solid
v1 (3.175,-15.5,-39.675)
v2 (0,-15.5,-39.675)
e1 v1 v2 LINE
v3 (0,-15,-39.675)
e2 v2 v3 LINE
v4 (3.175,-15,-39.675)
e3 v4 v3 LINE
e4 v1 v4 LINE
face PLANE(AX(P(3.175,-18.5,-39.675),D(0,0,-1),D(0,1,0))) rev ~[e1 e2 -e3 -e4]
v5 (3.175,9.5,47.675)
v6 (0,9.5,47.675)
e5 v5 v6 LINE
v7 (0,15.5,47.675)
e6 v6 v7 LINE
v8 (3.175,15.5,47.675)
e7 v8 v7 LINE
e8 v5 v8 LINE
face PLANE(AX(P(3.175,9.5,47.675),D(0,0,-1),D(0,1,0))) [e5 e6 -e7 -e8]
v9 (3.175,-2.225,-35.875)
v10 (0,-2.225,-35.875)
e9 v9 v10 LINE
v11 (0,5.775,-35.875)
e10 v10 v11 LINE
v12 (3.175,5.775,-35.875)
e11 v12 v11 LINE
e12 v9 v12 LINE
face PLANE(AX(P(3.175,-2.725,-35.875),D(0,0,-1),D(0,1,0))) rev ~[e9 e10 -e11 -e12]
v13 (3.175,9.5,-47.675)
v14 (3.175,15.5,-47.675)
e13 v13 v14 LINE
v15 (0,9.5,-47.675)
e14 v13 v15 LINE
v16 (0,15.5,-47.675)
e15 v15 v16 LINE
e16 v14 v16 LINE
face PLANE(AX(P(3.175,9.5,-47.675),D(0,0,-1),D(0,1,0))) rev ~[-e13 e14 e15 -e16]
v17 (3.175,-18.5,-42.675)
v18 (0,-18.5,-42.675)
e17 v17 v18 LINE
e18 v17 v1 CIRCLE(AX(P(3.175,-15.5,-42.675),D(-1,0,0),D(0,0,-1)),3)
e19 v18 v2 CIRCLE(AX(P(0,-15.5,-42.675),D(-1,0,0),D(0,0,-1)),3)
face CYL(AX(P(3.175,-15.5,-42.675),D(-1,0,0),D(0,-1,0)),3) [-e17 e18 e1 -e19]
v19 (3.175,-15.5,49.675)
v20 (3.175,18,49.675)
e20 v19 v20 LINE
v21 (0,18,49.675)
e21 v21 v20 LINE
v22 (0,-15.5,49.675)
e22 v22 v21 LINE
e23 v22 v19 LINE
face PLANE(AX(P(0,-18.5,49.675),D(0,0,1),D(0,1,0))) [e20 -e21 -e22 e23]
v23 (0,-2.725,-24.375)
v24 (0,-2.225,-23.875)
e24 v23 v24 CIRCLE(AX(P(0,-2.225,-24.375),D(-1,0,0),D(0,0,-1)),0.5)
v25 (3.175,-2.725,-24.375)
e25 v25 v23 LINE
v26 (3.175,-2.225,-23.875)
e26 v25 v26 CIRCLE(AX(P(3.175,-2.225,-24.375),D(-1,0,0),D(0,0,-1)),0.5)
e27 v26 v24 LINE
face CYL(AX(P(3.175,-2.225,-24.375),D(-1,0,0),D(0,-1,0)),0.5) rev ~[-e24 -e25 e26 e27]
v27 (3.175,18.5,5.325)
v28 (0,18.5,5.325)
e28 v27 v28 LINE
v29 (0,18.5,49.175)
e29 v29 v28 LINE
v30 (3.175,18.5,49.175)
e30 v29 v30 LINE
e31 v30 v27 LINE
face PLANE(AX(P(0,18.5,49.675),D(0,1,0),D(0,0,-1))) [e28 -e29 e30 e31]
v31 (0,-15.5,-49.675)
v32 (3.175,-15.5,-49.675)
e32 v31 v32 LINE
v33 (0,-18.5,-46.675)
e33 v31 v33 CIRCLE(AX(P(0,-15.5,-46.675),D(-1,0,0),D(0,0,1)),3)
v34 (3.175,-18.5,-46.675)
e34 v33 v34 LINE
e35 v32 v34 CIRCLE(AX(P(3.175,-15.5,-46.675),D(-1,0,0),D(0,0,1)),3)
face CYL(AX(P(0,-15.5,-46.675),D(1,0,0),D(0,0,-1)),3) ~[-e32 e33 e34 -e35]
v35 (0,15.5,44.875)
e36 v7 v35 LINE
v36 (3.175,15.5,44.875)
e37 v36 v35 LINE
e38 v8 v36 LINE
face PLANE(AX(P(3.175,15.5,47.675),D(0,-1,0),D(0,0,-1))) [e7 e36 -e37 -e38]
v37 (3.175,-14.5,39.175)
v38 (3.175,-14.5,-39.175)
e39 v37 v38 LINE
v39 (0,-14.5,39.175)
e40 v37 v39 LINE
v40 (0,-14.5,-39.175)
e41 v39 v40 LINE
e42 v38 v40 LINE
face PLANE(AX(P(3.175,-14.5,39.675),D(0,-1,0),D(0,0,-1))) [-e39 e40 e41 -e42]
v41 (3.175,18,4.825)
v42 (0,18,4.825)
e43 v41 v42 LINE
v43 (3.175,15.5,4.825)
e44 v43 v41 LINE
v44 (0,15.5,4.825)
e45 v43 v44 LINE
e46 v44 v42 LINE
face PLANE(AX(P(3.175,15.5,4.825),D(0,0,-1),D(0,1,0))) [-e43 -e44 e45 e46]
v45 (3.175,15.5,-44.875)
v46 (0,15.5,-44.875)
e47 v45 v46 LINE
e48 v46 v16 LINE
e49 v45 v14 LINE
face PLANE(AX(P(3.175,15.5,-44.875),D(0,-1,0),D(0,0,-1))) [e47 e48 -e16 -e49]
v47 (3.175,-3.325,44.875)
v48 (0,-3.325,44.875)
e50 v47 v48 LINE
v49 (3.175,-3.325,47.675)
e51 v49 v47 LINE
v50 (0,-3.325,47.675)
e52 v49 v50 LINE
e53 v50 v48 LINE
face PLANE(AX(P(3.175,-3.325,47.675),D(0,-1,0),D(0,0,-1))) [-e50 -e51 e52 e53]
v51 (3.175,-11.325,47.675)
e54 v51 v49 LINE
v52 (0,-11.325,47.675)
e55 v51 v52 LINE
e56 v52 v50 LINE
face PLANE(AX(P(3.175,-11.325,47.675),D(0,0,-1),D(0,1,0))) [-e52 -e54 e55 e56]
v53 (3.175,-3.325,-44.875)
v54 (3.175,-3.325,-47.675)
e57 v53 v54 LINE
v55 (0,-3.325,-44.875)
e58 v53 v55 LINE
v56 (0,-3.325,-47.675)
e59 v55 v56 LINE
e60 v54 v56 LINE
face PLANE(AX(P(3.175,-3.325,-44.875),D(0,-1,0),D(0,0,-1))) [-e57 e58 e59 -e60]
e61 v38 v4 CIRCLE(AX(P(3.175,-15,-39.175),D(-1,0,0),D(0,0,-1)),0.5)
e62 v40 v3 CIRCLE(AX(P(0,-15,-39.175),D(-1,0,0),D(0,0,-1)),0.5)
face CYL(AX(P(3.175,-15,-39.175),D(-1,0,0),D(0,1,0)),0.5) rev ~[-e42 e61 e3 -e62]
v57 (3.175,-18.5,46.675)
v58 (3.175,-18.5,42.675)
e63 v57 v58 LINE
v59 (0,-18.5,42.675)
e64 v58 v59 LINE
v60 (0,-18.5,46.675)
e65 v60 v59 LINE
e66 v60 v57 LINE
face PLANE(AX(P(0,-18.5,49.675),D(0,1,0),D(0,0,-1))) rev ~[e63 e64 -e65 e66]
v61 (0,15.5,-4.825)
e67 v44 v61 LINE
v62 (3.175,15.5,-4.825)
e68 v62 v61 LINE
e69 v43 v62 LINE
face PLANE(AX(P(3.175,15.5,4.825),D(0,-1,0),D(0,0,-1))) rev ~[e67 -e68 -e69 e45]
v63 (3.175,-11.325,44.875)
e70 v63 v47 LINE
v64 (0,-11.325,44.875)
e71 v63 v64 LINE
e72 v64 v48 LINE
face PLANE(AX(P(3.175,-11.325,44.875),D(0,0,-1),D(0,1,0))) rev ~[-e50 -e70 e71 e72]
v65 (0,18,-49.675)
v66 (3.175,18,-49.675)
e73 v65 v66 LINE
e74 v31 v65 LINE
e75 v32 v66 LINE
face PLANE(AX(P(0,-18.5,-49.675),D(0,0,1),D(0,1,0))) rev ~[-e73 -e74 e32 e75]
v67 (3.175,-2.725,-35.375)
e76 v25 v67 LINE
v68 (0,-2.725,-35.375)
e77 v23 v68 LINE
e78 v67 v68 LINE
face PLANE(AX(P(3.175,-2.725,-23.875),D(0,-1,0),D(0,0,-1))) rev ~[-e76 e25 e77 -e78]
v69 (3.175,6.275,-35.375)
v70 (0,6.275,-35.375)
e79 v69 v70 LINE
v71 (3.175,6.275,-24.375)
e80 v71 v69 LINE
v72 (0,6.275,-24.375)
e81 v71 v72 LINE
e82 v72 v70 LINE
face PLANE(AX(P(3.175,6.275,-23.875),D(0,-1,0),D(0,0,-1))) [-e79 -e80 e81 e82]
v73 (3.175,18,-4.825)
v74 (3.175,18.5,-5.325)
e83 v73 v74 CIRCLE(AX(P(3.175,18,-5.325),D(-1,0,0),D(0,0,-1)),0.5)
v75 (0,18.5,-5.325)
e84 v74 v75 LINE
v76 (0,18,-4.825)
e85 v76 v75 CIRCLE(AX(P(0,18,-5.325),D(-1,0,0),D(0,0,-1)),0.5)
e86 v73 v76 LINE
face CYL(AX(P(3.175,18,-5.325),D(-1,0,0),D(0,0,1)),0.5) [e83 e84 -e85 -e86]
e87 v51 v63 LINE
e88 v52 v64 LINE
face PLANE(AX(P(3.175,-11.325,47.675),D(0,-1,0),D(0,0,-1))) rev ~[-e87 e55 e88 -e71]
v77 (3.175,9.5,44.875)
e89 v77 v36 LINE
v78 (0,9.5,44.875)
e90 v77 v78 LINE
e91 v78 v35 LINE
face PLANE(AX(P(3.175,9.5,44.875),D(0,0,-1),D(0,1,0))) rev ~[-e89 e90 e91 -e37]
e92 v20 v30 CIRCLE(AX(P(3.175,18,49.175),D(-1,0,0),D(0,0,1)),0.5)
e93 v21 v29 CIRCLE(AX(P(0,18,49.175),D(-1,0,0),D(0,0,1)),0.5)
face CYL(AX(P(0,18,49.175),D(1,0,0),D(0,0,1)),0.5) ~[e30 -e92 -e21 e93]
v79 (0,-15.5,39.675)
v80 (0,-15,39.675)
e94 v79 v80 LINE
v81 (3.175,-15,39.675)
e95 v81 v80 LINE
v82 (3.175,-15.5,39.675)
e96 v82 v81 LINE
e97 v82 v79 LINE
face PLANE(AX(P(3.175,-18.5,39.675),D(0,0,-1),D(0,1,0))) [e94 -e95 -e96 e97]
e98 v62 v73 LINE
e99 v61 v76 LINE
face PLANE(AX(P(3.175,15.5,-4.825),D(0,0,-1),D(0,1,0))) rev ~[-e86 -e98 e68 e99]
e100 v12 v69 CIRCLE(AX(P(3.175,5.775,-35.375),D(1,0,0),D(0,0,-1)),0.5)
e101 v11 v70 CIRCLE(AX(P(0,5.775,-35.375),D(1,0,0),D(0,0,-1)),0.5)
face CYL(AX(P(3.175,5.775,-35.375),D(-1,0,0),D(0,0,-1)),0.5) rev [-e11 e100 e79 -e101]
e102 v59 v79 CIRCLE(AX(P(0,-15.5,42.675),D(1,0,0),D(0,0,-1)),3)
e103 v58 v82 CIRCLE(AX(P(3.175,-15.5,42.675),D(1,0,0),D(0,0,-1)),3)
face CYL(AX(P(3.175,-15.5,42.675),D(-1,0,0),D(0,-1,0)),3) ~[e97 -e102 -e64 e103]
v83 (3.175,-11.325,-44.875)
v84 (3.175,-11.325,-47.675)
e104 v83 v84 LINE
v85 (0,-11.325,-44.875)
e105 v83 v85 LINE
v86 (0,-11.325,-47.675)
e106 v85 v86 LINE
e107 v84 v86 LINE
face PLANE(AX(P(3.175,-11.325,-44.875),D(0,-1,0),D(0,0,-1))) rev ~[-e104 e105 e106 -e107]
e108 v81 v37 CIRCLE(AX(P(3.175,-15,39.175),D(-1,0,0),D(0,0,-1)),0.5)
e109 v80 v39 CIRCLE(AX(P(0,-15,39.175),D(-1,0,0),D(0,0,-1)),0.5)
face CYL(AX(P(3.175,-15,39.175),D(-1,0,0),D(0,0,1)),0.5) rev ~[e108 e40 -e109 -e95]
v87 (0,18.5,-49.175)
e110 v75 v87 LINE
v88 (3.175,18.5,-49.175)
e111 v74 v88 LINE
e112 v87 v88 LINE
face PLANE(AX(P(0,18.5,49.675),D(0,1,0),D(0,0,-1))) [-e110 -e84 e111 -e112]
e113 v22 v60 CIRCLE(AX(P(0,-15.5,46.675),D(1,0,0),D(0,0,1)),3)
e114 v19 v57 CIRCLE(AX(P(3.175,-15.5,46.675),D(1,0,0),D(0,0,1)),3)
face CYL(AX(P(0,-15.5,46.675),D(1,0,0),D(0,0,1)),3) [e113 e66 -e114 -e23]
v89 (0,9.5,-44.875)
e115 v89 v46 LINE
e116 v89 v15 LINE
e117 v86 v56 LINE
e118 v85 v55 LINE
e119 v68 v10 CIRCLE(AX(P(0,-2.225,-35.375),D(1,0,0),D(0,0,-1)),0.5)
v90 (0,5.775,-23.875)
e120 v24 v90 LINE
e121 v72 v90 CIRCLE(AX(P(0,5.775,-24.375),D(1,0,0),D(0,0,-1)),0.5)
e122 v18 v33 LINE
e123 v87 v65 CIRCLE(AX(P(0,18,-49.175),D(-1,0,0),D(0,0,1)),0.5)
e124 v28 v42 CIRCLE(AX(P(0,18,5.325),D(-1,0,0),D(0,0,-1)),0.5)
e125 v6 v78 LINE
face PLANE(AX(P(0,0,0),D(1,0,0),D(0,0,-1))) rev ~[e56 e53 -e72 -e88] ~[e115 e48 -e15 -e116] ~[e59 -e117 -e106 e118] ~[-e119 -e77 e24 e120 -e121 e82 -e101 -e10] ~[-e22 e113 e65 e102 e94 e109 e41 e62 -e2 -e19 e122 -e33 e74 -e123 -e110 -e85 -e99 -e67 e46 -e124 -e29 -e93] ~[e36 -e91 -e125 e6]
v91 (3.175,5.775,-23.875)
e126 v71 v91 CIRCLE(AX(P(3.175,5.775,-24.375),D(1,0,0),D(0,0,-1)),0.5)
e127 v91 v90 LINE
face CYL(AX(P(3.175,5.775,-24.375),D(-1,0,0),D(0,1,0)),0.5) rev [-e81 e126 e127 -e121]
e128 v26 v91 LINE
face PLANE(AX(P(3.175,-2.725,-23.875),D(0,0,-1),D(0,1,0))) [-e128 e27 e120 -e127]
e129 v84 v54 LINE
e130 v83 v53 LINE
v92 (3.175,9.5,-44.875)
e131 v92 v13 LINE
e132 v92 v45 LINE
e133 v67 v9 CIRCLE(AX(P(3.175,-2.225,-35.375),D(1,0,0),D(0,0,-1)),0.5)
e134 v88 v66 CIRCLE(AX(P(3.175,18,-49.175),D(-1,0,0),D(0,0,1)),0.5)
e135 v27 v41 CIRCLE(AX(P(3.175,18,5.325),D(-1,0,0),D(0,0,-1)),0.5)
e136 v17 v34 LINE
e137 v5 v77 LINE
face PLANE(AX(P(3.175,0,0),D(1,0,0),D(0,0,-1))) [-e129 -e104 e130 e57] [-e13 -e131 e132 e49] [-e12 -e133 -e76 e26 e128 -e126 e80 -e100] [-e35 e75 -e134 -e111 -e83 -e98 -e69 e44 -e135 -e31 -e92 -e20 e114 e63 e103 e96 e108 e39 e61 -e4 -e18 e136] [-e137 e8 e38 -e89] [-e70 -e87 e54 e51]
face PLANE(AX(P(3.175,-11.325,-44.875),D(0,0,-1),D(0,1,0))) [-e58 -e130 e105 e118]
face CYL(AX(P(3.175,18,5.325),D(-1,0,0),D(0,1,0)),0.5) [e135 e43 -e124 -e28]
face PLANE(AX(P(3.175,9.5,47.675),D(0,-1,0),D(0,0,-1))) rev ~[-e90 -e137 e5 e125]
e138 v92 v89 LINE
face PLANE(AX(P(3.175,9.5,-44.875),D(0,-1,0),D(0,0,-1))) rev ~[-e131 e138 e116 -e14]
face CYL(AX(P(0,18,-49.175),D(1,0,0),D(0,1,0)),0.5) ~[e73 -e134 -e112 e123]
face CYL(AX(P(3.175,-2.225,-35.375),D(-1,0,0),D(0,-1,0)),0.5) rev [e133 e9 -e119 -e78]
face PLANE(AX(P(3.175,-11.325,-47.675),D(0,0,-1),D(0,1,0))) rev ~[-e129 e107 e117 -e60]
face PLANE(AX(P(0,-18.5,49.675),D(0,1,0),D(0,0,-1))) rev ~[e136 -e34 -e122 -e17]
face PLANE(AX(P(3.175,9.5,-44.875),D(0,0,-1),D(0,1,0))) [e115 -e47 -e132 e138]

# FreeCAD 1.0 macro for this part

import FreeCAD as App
import Part
import Sketcher
from FreeCAD import Vector


def edges_at(feature, points):
    """Names of the edges that pass closest to the given points."""
    edges = feature.Shape.Edges
    near = lambda p: min(range(len(edges)), key=lambda i: edges[i].distToShape(Part.Vertex(*p))[0])
    return sorted({f"Edge{near(p) + 1}" for p in points})

doc = App.newDocument("Part")
body = doc.addObject("PartDesign::Body", "Body")

# Sketch on YZ plane
sketch1 = body.newObject("Sketcher::SketchObject", "Sketch")
sketch1.AttachmentSupport = (doc.getObject("YZ_Plane"), [""])
sketch1.MapMode = "FlatFace"
sketch1.addGeometry([
    Part.LineSegment(Vector(18, 50, 0), Vector(-18, 50, 0)),
    Part.LineSegment(Vector(-18, 50, 0), Vector(-18, -50, 0)),
    Part.LineSegment(Vector(-18, -50, 0), Vector(18, -50, 0)),
    Part.LineSegment(Vector(18, -50, 0), Vector(18, 50, 0)),
], False)
sketch1.addConstraint([
    Sketcher.Constraint("Coincident", 0, 2, 1, 1),
    Sketcher.Constraint("Coincident", 1, 2, 2, 1),
    Sketcher.Constraint("Coincident", 2, 2, 3, 1),
    Sketcher.Constraint("Coincident", 3, 2, 0, 1),
    Sketcher.Constraint("Horizontal", 0),
    Sketcher.Constraint("Vertical", 1),
    Sketcher.Constraint("Horizontal", 2),
    Sketcher.Constraint("Vertical", 3),
    Sketcher.Constraint("Symmetric", 0, 2, 2, 2, -1, 1),
    Sketcher.Constraint("DistanceX", 0, 2, 0, 1, 37.0),
    Sketcher.Constraint("DistanceY", 1, 2, 1, 1, 99.35),
])
pad1 = body.newObject("PartDesign::Pad", "Pad")
pad1.Profile = sketch1
pad1.Length = 3.175

# Sketch on YZ plane
sketch2 = body.newObject("Sketcher::SketchObject", "Sketch001")
sketch2.AttachmentSupport = (doc.getObject("YZ_Plane"), [""])
sketch2.MapMode = "FlatFace"
sketch2.AttachmentOffset = App.Placement(Vector(0, 0, 3.175), App.Rotation())
sketch2.addGeometry([
    Part.LineSegment(Vector(15.5, 47.7, 0), Vector(9.5, 47.7, 0)),  # 0
    Part.LineSegment(Vector(9.5, 47.7, 0), Vector(9.5, 44.9, 0)),  # 1
    Part.LineSegment(Vector(9.5, 44.9, 0), Vector(15.5, 44.9, 0)),  # 2
    Part.LineSegment(Vector(15.5, 44.9, 0), Vector(15.5, 47.7, 0)),  # 3
    Part.LineSegment(Vector(15.5, -44.9, 0), Vector(9.5, -44.9, 0)),  # 4
    Part.LineSegment(Vector(9.5, -44.9, 0), Vector(9.5, -47.7, 0)),  # 5
    Part.LineSegment(Vector(9.5, -47.7, 0), Vector(15.5, -47.7, 0)),  # 6
    Part.LineSegment(Vector(15.5, -47.7, 0), Vector(15.5, -44.9, 0)),  # 7
    Part.LineSegment(Vector(-3.3, 47.7, 0), Vector(-11.3, 47.7, 0)),  # 8
    Part.LineSegment(Vector(-11.3, 47.7, 0), Vector(-11.3, 44.9, 0)),  # 9
    Part.LineSegment(Vector(-11.3, 44.9, 0), Vector(-3.3, 44.9, 0)),  # 10
    Part.LineSegment(Vector(-3.3, 44.9, 0), Vector(-3.3, 47.7, 0)),  # 11
    Part.LineSegment(Vector(-3.3, -44.9, 0), Vector(-11.3, -44.9, 0)),  # 12
    Part.LineSegment(Vector(-11.3, -44.9, 0), Vector(-11.3, -47.7, 0)),  # 13
    Part.LineSegment(Vector(-11.3, -47.7, 0), Vector(-3.3, -47.7, 0)),  # 14
    Part.LineSegment(Vector(-3.3, -47.7, 0), Vector(-3.3, -44.9, 0)),  # 15
], False)
sketch2.addConstraint([
    Sketcher.Constraint("Coincident", 0, 2, 1, 1),
    Sketcher.Constraint("Coincident", 1, 2, 2, 1),
    Sketcher.Constraint("Coincident", 2, 2, 3, 1),
    Sketcher.Constraint("Coincident", 3, 2, 0, 1),
    Sketcher.Constraint("Coincident", 4, 2, 5, 1),
    Sketcher.Constraint("Coincident", 5, 2, 6, 1),
    Sketcher.Constraint("Coincident", 6, 2, 7, 1),
    Sketcher.Constraint("Coincident", 7, 2, 4, 1),
    Sketcher.Constraint("Coincident", 8, 2, 9, 1),
    Sketcher.Constraint("Coincident", 9, 2, 10, 1),
    Sketcher.Constraint("Coincident", 10, 2, 11, 1),
    Sketcher.Constraint("Coincident", 11, 2, 8, 1),
    Sketcher.Constraint("Coincident", 12, 2, 13, 1),
    Sketcher.Constraint("Coincident", 13, 2, 14, 1),
    Sketcher.Constraint("Coincident", 14, 2, 15, 1),
    Sketcher.Constraint("Coincident", 15, 2, 12, 1),
    Sketcher.Constraint("Horizontal", 0),
    Sketcher.Constraint("Vertical", 1),
    Sketcher.Constraint("Horizontal", 2),
    Sketcher.Constraint("Vertical", 3),
    Sketcher.Constraint("Horizontal", 4),
    Sketcher.Constraint("Vertical", 5),
    Sketcher.Constraint("Horizontal", 6),
    Sketcher.Constraint("Vertical", 7),
    Sketcher.Constraint("Horizontal", 8),
    Sketcher.Constraint("Vertical", 9),
    Sketcher.Constraint("Horizontal", 10),
    Sketcher.Constraint("Vertical", 11),
    Sketcher.Constraint("Horizontal", 12),
    Sketcher.Constraint("Vertical", 13),
    Sketcher.Constraint("Horizontal", 14),
    Sketcher.Constraint("Vertical", 15),
    Sketcher.Constraint("Symmetric", 1, 2, 4, 2, -1),
    Sketcher.Constraint("Symmetric", 3, 2, 6, 2, -1),
    Sketcher.Constraint("Symmetric", 9, 2, 12, 2, -1),
    Sketcher.Constraint("Symmetric", 11, 2, 14, 2, -1),
    Sketcher.Constraint("Horizontal", 3, 2, 8, 2),
    Sketcher.Constraint("Horizontal", 2, 2, 9, 2),
    Sketcher.Constraint("DistanceX", 0, 2, 0, 1, 6.0),
    Sketcher.Constraint("DistanceX", 8, 2, 8, 1, 8.0),
    Sketcher.Constraint("DistanceY", 1, 2, 1, 1, 2.8),
    Sketcher.Constraint("DistanceX", -1, 1, 0, 2, 9.5),
    Sketcher.Constraint("DistanceY", 4, 2, 1, 2, 89.75),
    Sketcher.Constraint("DistanceX", 8, 2, -1, 1, 11.325),
])
pocket1 = body.newObject("PartDesign::Pocket", "Pocket")
pocket1.Profile = sketch2
pocket1.Type = "ThroughAll"

# Sketch on YZ plane
sketch3 = body.newObject("Sketcher::SketchObject", "Sketch002")
sketch3.AttachmentSupport = (doc.getObject("YZ_Plane"), [""])
sketch3.MapMode = "FlatFace"
sketch3.AttachmentOffset = App.Placement(Vector(0, 0, 3.175), App.Rotation())
sketch3.addGeometry([
    Part.LineSegment(Vector(-14.5, 39.7, 0), Vector(-18.5, 39.7, 0)),
    Part.LineSegment(Vector(-18.5, 39.7, 0), Vector(-18.5, -39.7, 0)),
    Part.LineSegment(Vector(-18.5, -39.7, 0), Vector(-14.5, -39.7, 0)),
    Part.LineSegment(Vector(-14.5, -39.7, 0), Vector(-14.5, 39.7, 0)),
], False)
sketch3.addConstraint([
    Sketcher.Constraint("Coincident", 0, 2, 1, 1),
    Sketcher.Constraint("Coincident", 1, 2, 2, 1),
    Sketcher.Constraint("Coincident", 2, 2, 3, 1),
    Sketcher.Constraint("Coincident", 3, 2, 0, 1),
    Sketcher.Constraint("Horizontal", 0),
    Sketcher.Constraint("Vertical", 1),
    Sketcher.Constraint("Horizontal", 2),
    Sketcher.Constraint("Vertical", 3),
    Sketcher.Constraint("DistanceX", 0, 2, 0, 1, 4.0),
    Sketcher.Constraint("DistanceY", 1, 2, 1, 1, 79.35),
    Sketcher.Constraint("DistanceX", 0, 2, -1, 1, 18.5),
    Sketcher.Constraint("DistanceY", -1, 1, 0, 2, 39.675),
])
pocket2 = body.newObject("PartDesign::Pocket", "Pocket001")
pocket2.Profile = sketch3
pocket2.Type = "ThroughAll"
doc.recompute()

fillet = body.newObject("PartDesign::Fillet", "Fillet")
fillet.Base = (pocket2, edges_at(pocket2, [
    (1.587, -18.5, -49.675),
    (1.587, -18.5, 49.675),
    (1.587, -18.5, 39.675),
    (1.587, -18.5, -39.675),
]))
fillet.Radius = 3
doc.recompute()

fillet2 = body.newObject("PartDesign::Fillet", "Fillet001")
fillet2.Base = (fillet, edges_at(fillet, [
    (1.587, 18.5, 49.675),
    (1.587, 18.5, -49.675),
    (1.587, -14.5, 39.675),
    (1.587, -14.5, -39.675),
]))
fillet2.Radius = 0.5

# Sketch on YZ plane
sketch4 = body.newObject("Sketcher::SketchObject", "Sketch003")
sketch4.AttachmentSupport = (doc.getObject("YZ_Plane"), [""])
sketch4.MapMode = "FlatFace"
sketch4.AttachmentOffset = App.Placement(Vector(0, 0, 3.175), App.Rotation())
sketch4.addGeometry([
    Part.LineSegment(Vector(18.5, 4.8, 0), Vector(15.5, 4.8, 0)),
    Part.LineSegment(Vector(15.5, 4.8, 0), Vector(15.5, -4.8, 0)),
    Part.LineSegment(Vector(15.5, -4.8, 0), Vector(18.5, -4.8, 0)),
    Part.LineSegment(Vector(18.5, -4.8, 0), Vector(18.5, 4.8, 0)),
], False)
sketch4.addConstraint([
    Sketcher.Constraint("Coincident", 0, 2, 1, 1),
    Sketcher.Constraint("Coincident", 1, 2, 2, 1),
    Sketcher.Constraint("Coincident", 2, 2, 3, 1),
    Sketcher.Constraint("Coincident", 3, 2, 0, 1),
    Sketcher.Constraint("Horizontal", 0),
    Sketcher.Constraint("Vertical", 1),
    Sketcher.Constraint("Horizontal", 2),
    Sketcher.Constraint("Vertical", 3),
    Sketcher.Constraint("DistanceX", 0, 2, 0, 1, 3.0),
    Sketcher.Constraint("DistanceY", 1, 2, 1, 1, 9.65),
    Sketcher.Constraint("DistanceX", -1, 1, 0, 2, 15.5),
    Sketcher.Constraint("DistanceY", -1, 1, 0, 2, 4.825),
])
pocket3 = body.newObject("PartDesign::Pocket", "Pocket002")
pocket3.Profile = sketch4
pocket3.Type = "ThroughAll"

# Sketch on YZ plane
sketch5 = body.newObject("Sketcher::SketchObject", "Sketch004")
sketch5.AttachmentSupport = (doc.getObject("YZ_Plane"), [""])
sketch5.MapMode = "FlatFace"
sketch5.AttachmentOffset = App.Placement(Vector(0, 0, 3.175), App.Rotation())
sketch5.addGeometry([
    Part.LineSegment(Vector(6, -24, 0), Vector(-3, -24, 0)),
    Part.LineSegment(Vector(-3, -24, 0), Vector(-3, -36, 0)),
    Part.LineSegment(Vector(-3, -36, 0), Vector(6, -36, 0)),
    Part.LineSegment(Vector(6, -36, 0), Vector(6, -24, 0)),
], False)
sketch5.addConstraint([
    Sketcher.Constraint("Coincident", 0, 2, 1, 1),
    Sketcher.Constraint("Coincident", 1, 2, 2, 1),
    Sketcher.Constraint("Coincident", 2, 2, 3, 1),
    Sketcher.Constraint("Coincident", 3, 2, 0, 1),
    Sketcher.Constraint("Horizontal", 0),
    Sketcher.Constraint("Vertical", 1),
    Sketcher.Constraint("Horizontal", 2),
    Sketcher.Constraint("Vertical", 3),
    Sketcher.Constraint("DistanceX", 0, 2, 0, 1, 9.0),
    Sketcher.Constraint("DistanceY", 1, 2, 1, 1, 12.0),
    Sketcher.Constraint("DistanceX", 0, 2, -1, 1, 2.725),
    Sketcher.Constraint("DistanceY", 0, 2, -1, 1, 23.875),
])
pocket4 = body.newObject("PartDesign::Pocket", "Pocket003")
pocket4.Profile = sketch5
pocket4.Type = "ThroughAll"
doc.recompute()

fillet3 = body.newObject("PartDesign::Fillet", "Fillet002")
fillet3.Base = (pocket4, edges_at(pocket4, [
    (1.587, -2.725, -23.875),
    (1.587, 6.275, -23.875),
    (1.587, 6.275, -35.875),
    (1.587, -2.725, -35.875),
]))
fillet3.Radius = 0.5
doc.recompute()

fillet4 = body.newObject("PartDesign::Fillet", "Fillet003")
fillet4.Base = (fillet3, edges_at(fillet3, [(1.587, 18.5, 4.825), (1.587, 18.5, -4.825)]))
fillet4.Radius = 0.5

doc.recompute()
